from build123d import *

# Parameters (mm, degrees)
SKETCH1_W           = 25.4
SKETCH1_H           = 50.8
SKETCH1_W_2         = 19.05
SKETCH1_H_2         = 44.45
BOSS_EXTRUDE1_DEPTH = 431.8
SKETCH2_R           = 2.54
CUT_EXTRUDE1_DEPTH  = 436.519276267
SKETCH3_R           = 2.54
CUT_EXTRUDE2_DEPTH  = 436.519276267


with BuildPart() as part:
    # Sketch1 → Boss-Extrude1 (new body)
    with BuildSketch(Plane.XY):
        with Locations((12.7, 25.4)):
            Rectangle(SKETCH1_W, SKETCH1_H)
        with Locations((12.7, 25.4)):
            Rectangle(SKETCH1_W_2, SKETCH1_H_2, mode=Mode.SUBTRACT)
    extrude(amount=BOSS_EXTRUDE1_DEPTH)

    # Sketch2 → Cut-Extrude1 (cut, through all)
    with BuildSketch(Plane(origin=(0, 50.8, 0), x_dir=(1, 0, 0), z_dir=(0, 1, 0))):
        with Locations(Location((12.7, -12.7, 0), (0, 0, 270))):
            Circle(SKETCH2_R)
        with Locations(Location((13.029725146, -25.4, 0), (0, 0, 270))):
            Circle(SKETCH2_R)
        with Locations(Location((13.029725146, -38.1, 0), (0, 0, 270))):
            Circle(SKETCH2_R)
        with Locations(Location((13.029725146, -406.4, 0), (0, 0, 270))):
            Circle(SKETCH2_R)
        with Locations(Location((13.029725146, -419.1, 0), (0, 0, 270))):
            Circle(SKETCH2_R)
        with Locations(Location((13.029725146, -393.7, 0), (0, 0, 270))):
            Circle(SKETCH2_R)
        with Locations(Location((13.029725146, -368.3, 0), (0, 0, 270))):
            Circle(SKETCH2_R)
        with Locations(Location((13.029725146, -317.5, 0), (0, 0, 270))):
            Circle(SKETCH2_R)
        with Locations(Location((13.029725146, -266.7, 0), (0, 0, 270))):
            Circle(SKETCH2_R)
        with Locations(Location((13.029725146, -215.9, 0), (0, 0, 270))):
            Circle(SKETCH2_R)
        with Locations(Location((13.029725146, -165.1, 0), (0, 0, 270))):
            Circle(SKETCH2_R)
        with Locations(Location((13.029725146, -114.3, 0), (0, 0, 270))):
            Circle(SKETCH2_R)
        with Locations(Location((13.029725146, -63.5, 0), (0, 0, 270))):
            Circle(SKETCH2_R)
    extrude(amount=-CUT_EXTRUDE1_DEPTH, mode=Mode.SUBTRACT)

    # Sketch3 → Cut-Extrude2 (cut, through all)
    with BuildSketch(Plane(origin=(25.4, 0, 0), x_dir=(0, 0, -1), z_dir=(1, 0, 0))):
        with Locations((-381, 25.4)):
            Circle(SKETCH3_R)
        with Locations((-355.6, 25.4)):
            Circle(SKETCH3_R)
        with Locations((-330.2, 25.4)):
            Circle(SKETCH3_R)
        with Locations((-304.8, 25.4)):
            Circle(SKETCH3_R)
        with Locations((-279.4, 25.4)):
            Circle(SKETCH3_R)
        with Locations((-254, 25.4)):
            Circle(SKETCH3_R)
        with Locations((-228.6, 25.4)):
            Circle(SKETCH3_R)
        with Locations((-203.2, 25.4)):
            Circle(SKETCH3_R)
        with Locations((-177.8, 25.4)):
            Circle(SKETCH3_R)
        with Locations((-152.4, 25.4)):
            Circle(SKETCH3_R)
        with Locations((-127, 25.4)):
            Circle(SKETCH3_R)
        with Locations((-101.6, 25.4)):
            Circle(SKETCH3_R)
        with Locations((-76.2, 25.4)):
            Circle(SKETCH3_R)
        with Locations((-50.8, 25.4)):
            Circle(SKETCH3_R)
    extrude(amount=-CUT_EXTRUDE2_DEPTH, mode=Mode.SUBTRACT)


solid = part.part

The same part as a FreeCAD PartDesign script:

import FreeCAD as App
import Part
import Sketcher
from FreeCAD import Vector
Q = App.Units.Quantity


def add_polygon(sketch, points):
    """Adds a closed chain of lines whose ends are joined by coincident constraints."""
    first, n = sketch.GeometryCount, len(points)
    for a, b in zip(points, points[1:] + points[:1]):
        sketch.addGeometry(Part.LineSegment(App.Vector(*a, 0), App.Vector(*b, 0)), False)
    for i in range(n):
        sketch.addConstraint(Sketcher.Constraint("Coincident", first + i, 2, first + (i + 1) % n, 1))

doc = App.newDocument("Part")
body = doc.addObject("PartDesign::Body", "Body")

sketch1 = doc.addObject("Sketcher::SketchObject", "Sketch")
body.addObject(sketch1)
sketch1.AttachmentSupport = (doc.XY_Plane, [""])
sketch1.MapMode = "FlatFace"
add_polygon(sketch1, [(0, 51), (0, 0), (25, 0), (25, 51)])
add_polygon(sketch1, [(22, 3), (3, 3), (3, 48), (22, 48)])
sketch1.addConstraint(Sketcher.Constraint("Vertical", 0))
sketch1.addConstraint(Sketcher.Constraint("Horizontal", 1))
sketch1.addConstraint(Sketcher.Constraint("Vertical", 2))
sketch1.addConstraint(Sketcher.Constraint("Horizontal", 3))
sketch1.addConstraint(Sketcher.Constraint("Horizontal", 4))
sketch1.addConstraint(Sketcher.Constraint("Vertical", 5))
sketch1.addConstraint(Sketcher.Constraint("Horizontal", 6))
sketch1.addConstraint(Sketcher.Constraint("Vertical", 7))
sketch1.addConstraint(Sketcher.Constraint("Coincident", 0, 2, -1, 1))
sketch1.addConstraint(Sketcher.Constraint("DistanceX", 1, 1, 1, 2, Q("1 in")))
sketch1.addConstraint(Sketcher.Constraint("DistanceY", 0, 2, 0, 1, Q("2 in")))
sketch1.addConstraint(Sketcher.Constraint("DistanceX", 4, 2, 4, 1, Q("0.75 in")))
sketch1.addConstraint(Sketcher.Constraint("DistanceY", 5, 1, 5, 2, Q("1.75 in")))
sketch1.addConstraint(Sketcher.Constraint("DistanceX", -1, 1, 4, 2, Q("0.125 in")))
sketch1.addConstraint(Sketcher.Constraint("DistanceY", -1, 1, 4, 2, Q("0.125 in")))
pad1 = doc.addObject("PartDesign::Pad", "Pad")
body.addObject(pad1)
pad1.Profile = sketch1
pad1.Length = Q("17 in")

sketch2 = doc.addObject("Sketcher::SketchObject", "Sketch001")
body.addObject(sketch2)
sketch2.AttachmentSupport = (doc.XZ_Plane, [""])
sketch2.MapMode = "FlatFace"
sketch2.AttachmentOffset = App.Placement(Vector(0, 0, -2 * 25.4), App.Rotation())
sketch2.addGeometry(Part.Circle(Vector(12.7, 12.7, 0), Vector(0, 0, 1), 2.5), False)
sketch2.addGeometry(Part.Circle(Vector(13, 25.4, 0), Vector(0, 0, 1), 2.5), False)
sketch2.addGeometry(Part.Circle(Vector(13, 38.1, 0), Vector(0, 0, 1), 2.5), False)
sketch2.addGeometry(Part.Circle(Vector(13, 406.4, 0), Vector(0, 0, 1), 2.5), False)
sketch2.addGeometry(Part.Circle(Vector(13, 419.1, 0), Vector(0, 0, 1), 2.5), False)
sketch2.addGeometry(Part.Circle(Vector(13, 393.7, 0), Vector(0, 0, 1), 2.5), False)
sketch2.addGeometry(Part.Circle(Vector(13, 368.3, 0), Vector(0, 0, 1), 2.5), False)
sketch2.addGeometry(Part.Circle(Vector(13, 317.5, 0), Vector(0, 0, 1), 2.5), False)
sketch2.addGeometry(Part.Circle(Vector(13, 266.7, 0), Vector(0, 0, 1), 2.5), False)
sketch2.addGeometry(Part.Circle(Vector(13, 215.9, 0), Vector(0, 0, 1), 2.5), False)
sketch2.addGeometry(Part.Circle(Vector(13, 165.1, 0), Vector(0, 0, 1), 2.5), False)
sketch2.addGeometry(Part.Circle(Vector(13, 114.3, 0), Vector(0, 0, 1), 2.5), False)
sketch2.addGeometry(Part.Circle(Vector(13, 63.5, 0), Vector(0, 0, 1), 2.5), False)
sketch2.addConstraint(Sketcher.Constraint("Equal", 0, 1))
sketch2.addConstraint(Sketcher.Constraint("Equal", 1, 2))
sketch2.addConstraint(Sketcher.Constraint("Equal", 2, 3))
sketch2.addConstraint(Sketcher.Constraint("Equal", 3, 4))
sketch2.addConstraint(Sketcher.Constraint("Equal", 4, 5))
sketch2.addConstraint(Sketcher.Constraint("Equal", 5, 6))
sketch2.addConstraint(Sketcher.Constraint("Equal", 6, 7))
sketch2.addConstraint(Sketcher.Constraint("Equal", 7, 8))
sketch2.addConstraint(Sketcher.Constraint("Equal", 8, 9))
sketch2.addConstraint(Sketcher.Constraint("Equal", 9, 10))
sketch2.addConstraint(Sketcher.Constraint("Equal", 10, 11))
sketch2.addConstraint(Sketcher.Constraint("Equal", 11, 12))
sketch2.addConstraint(Sketcher.Constraint("Vertical", 1, 3, 2, 3))
sketch2.addConstraint(Sketcher.Constraint("Vertical", 2, 3, 3, 3))
sketch2.addConstraint(Sketcher.Constraint("Vertical", 3, 3, 4, 3))
sketch2.addConstraint(Sketcher.Constraint("Vertical", 4, 3, 5, 3))
sketch2.addConstraint(Sketcher.Constraint("Vertical", 5, 3, 6, 3))
sketch2.addConstraint(Sketcher.Constraint("Vertical", 6, 3, 7, 3))
sketch2.addConstraint(Sketcher.Constraint("Vertical", 7, 3, 8, 3))
sketch2.addConstraint(Sketcher.Constraint("Vertical", 8, 3, 9, 3))
sketch2.addConstraint(Sketcher.Constraint("Vertical", 9, 3, 10, 3))
sketch2.addConstraint(Sketcher.Constraint("Vertical", 10, 3, 11, 3))
sketch2.addConstraint(Sketcher.Constraint("Vertical", 11, 3, 12, 3))
sketch2.addConstraint(Sketcher.Constraint("Diameter", 0, Q("0.2 in")))
sketch2.addConstraint(Sketcher.Constraint("DistanceY", -1, 1, 1, 3, Q("1 in")))
sketch2.addConstraint(Sketcher.Constraint("DistanceY", -1, 1, 3, 3, Q("16 in")))
sketch2.addConstraint(Sketcher.Constraint("DistanceY", 0, 3, 2, 3, Q("1 in")))
sketch2.addConstraint(Sketcher.Constraint("DistanceY", 2, 3, 4, 3, Q("15 in")))
sketch2.addConstraint(Sketcher.Constraint("DistanceY", 5, 3, 4, 3, Q("1 in")))
sketch2.addConstraint(Sketcher.Constraint("DistanceY", 6, 3, 5, 3, Q("1 in")))
sketch2.addConstraint(Sketcher.Constraint("DistanceY", 7, 3, 6, 3, Q("2 in")))
sketch2.addConstraint(Sketcher.Constraint("DistanceY", 8, 3, 7, 3, Q("2 in")))
sketch2.addConstraint(Sketcher.Constraint("DistanceY", 9, 3, 8, 3, Q("2 in")))
sketch2.addConstraint(Sketcher.Constraint("DistanceY", 10, 3, 9, 3, Q("2 in")))
sketch2.addConstraint(Sketcher.Constraint("DistanceY", 11, 3, 10, 3, Q("2 in")))
sketch2.addConstraint(Sketcher.Constraint("DistanceY", 2, 3, 12, 3, Q("1 in")))
sketch2.addConstraint(Sketcher.Constraint("DistanceX", -1, 1, 0, 3, Q("0.5 in")))
sketch2.addConstraint(Sketcher.Constraint("DistanceY", -1, 1, 0, 3, Q("0.5 in")))
sketch2.addConstraint(Sketcher.Constraint("DistanceX", -1, 1, 1, 3, Q("13.029725 mm")))
pocket1 = doc.addObject("PartDesign::Pocket", "Pocket")
body.addObject(pocket1)
pocket1.Profile = sketch2
pocket1.Type = "ThroughAll"
pocket1.Reversed = True

sketch3 = doc.addObject("Sketcher::SketchObject", "Sketch002")
body.addObject(sketch3)
sketch3.AttachmentSupport = (doc.YZ_Plane, [""])
sketch3.MapMode = "FlatFace"
sketch3.AttachmentOffset = App.Placement(Vector(0, 0, 1 * 25.4), App.Rotation())
sketch3.addGeometry(Part.Circle(Vector(25.4, 381, 0), Vector(0, 0, 1), 2.5), False)
sketch3.addGeometry(Part.Circle(Vector(25.4, 355.6, 0), Vector(0, 0, 1), 2.5), False)
sketch3.addGeometry(Part.Circle(Vector(25.4, 330.2, 0), Vector(0, 0, 1), 2.5), False)
sketch3.addGeometry(Part.Circle(Vector(25.4, 304.8, 0), Vector(0, 0, 1), 2.5), False)
sketch3.addGeometry(Part.Circle(Vector(25.4, 279.4, 0), Vector(0, 0, 1), 2.5), False)
sketch3.addGeometry(Part.Circle(Vector(25.4, 254, 0), Vector(0, 0, 1), 2.5), False)
sketch3.addGeometry(Part.Circle(Vector(25.4, 228.6, 0), Vector(0, 0, 1), 2.5), False)
sketch3.addGeometry(Part.Circle(Vector(25.4, 203.2, 0), Vector(0, 0, 1), 2.5), False)
sketch3.addGeometry(Part.Circle(Vector(25.4, 177.8, 0), Vector(0, 0, 1), 2.5), False)
sketch3.addGeometry(Part.Circle(Vector(25.4, 152.4, 0), Vector(0, 0, 1), 2.5), False)
sketch3.addGeometry(Part.Circle(Vector(25.4, 127, 0), Vector(0, 0, 1), 2.5), False)
sketch3.addGeometry(Part.Circle(Vector(25.4, 101.6, 0), Vector(0, 0, 1), 2.5), False)
sketch3.addGeometry(Part.Circle(Vector(25.4, 76.2, 0), Vector(0, 0, 1), 2.5), False)
sketch3.addGeometry(Part.Circle(Vector(25.4, 50.8, 0), Vector(0, 0, 1), 2.5), False)
sketch3.addConstraint(Sketcher.Constraint("Equal", 0, 1))
sketch3.addConstraint(Sketcher.Constraint("Equal", 1, 2))
sketch3.addConstraint(Sketcher.Constraint("Equal", 2, 3))
sketch3.addConstraint(Sketcher.Constraint("Equal", 3, 4))
sketch3.addConstraint(Sketcher.Constraint("Equal", 4, 5))
sketch3.addConstraint(Sketcher.Constraint("Equal", 5, 6))
sketch3.addConstraint(Sketcher.Constraint("Equal", 6, 7))
sketch3.addConstraint(Sketcher.Constraint("Equal", 7, 8))
sketch3.addConstraint(Sketcher.Constraint("Equal", 8, 9))
sketch3.addConstraint(Sketcher.Constraint("Equal", 9, 10))
sketch3.addConstraint(Sketcher.Constraint("Equal", 10, 11))
sketch3.addConstraint(Sketcher.Constraint("Equal", 11, 12))
sketch3.addConstraint(Sketcher.Constraint("Equal", 12, 13))
sketch3.addConstraint(Sketcher.Constraint("Vertical", 0, 3, 1, 3))
sketch3.addConstraint(Sketcher.Constraint("Vertical", 1, 3, 2, 3))
sketch3.addConstraint(Sketcher.Constraint("Vertical", 2, 3, 3, 3))
sketch3.addConstraint(Sketcher.Constraint("Vertical", 3, 3, 4, 3))
sketch3.addConstraint(Sketcher.Constraint("Vertical", 4, 3, 5, 3))
sketch3.addConstraint(Sketcher.Constraint("Vertical", 5, 3, 6, 3))
sketch3.addConstraint(Sketcher.Constraint("Vertical", 6, 3, 7, 3))
sketch3.addConstraint(Sketcher.Constraint("Vertical", 7, 3, 8, 3))
sketch3.addConstraint(Sketcher.Constraint("Vertical", 8, 3, 9, 3))
sketch3.addConstraint(Sketcher.Constraint("Vertical", 9, 3, 10, 3))
sketch3.addConstraint(Sketcher.Constraint("Vertical", 10, 3, 11, 3))
sketch3.addConstraint(Sketcher.Constraint("Vertical", 11, 3, 12, 3))
sketch3.addConstraint(Sketcher.Constraint("Vertical", 12, 3, 13, 3))
sketch3.addConstraint(Sketcher.Constraint("Diameter", 0, Q("0.2 in")))
sketch3.addConstraint(Sketcher.Constraint("DistanceX", -1, 1, 0, 3, Q("1 in")))
sketch3.addConstraint(Sketcher.Constraint("DistanceY", -1, 1, 0, 3, Q("15 in")))
sketch3.addConstraint(Sketcher.Constraint("DistanceY", -1, 1, 1, 3, Q("14 in")))
sketch3.addConstraint(Sketcher.Constraint("DistanceY", -1, 1, 2, 3, Q("13 in")))
sketch3.addConstraint(Sketcher.Constraint("DistanceY", -1, 1, 3, 3, Q("12 in")))
sketch3.addConstraint(Sketcher.Constraint("DistanceY", -1, 1, 4, 3, Q("11 in")))
sketch3.addConstraint(Sketcher.Constraint("DistanceY", -1, 1, 5, 3, Q("10 in")))
sketch3.addConstraint(Sketcher.Constraint("DistanceY", -1, 1, 6, 3, Q("9 in")))
sketch3.addConstraint(Sketcher.Constraint("DistanceY", -1, 1, 7, 3, Q("8 in")))
sketch3.addConstraint(Sketcher.Constraint("DistanceY", -1, 1, 8, 3, Q("7 in")))
sketch3.addConstraint(Sketcher.Constraint("DistanceY", -1, 1, 9, 3, Q("6 in")))
sketch3.addConstraint(Sketcher.Constraint("DistanceY", -1, 1, 10, 3, Q("5 in")))
sketch3.addConstraint(Sketcher.Constraint("DistanceY", -1, 1, 11, 3, Q("4 in")))
sketch3.addConstraint(Sketcher.Constraint("DistanceY", -1, 1, 12, 3, Q("3 in")))
sketch3.addConstraint(Sketcher.Constraint("DistanceY", -1, 1, 13, 3, Q("2 in")))
pocket2 = doc.addObject("PartDesign::Pocket", "Pocket001")
body.addObject(pocket2)
pocket2.Profile = sketch3
pocket2.Type = "ThroughAll"

doc.recompute()
